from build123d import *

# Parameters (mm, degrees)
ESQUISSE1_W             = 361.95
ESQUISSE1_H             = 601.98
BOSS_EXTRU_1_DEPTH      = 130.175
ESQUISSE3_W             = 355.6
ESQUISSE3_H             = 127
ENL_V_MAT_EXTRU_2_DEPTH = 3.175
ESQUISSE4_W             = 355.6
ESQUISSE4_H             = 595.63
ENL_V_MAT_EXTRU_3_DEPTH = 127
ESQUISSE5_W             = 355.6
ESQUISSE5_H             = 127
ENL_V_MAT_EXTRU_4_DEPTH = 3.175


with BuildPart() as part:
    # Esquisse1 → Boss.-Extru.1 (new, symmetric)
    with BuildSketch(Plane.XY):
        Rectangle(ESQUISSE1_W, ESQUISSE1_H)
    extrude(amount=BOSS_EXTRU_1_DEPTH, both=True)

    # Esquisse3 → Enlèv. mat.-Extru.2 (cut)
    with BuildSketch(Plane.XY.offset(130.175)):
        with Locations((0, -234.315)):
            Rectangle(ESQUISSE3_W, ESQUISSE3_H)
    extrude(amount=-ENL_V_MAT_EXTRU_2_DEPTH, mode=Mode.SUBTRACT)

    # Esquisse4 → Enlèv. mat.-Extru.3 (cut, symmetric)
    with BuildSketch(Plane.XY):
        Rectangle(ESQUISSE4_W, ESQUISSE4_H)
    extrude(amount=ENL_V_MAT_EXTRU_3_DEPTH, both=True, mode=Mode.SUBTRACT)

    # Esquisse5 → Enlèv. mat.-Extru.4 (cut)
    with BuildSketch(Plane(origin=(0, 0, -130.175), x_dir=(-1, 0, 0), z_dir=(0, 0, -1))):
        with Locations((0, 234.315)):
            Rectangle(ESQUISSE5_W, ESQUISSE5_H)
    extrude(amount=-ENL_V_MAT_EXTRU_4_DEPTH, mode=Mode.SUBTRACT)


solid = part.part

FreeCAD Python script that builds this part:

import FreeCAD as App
import Part
import Sketcher

V = App.Vector
Q = App.Units.Quantity

doc = App.newDocument("Part")
body = doc.addObject("PartDesign::Body", "Body")

# Sketch on XY plane
sketch1 = body.newObject("Sketcher::SketchObject", "Sketch")
sketch1.AttachmentSupport = (doc.getObject("XY_Plane"), [""])
sketch1.MapMode = "FlatFace"
sketch1.addGeometry([
    Part.LineSegment(V(-180.975, 300.99, 0), V(-180.975, -300.99, 0)),
    Part.LineSegment(V(-180.975, -300.99, 0), V(180.975, -300.99, 0)),
    Part.LineSegment(V(180.975, -300.99, 0), V(180.975, 300.99, 0)),
    Part.LineSegment(V(180.975, 300.99, 0), V(-180.975, 300.99, 0)),
], False)
sketch1.addConstraint([
    Sketcher.Constraint("Coincident", 0, 2, 1, 1),
    Sketcher.Constraint("Coincident", 1, 2, 2, 1),
    Sketcher.Constraint("Coincident", 2, 2, 3, 1),
    Sketcher.Constraint("Coincident", 3, 2, 0, 1),
    Sketcher.Constraint("Vertical", 0),
    Sketcher.Constraint("Horizontal", 1),
    Sketcher.Constraint("Vertical", 2),
    Sketcher.Constraint("Horizontal", 3),
    Sketcher.Constraint("Symmetric", 0, 2, 2, 2, -1, 1),
    Sketcher.Constraint("DistanceY", 0, 2, 0, 1, Q("23.7 in")),
    Sketcher.Constraint("DistanceX", 1, 1, 1, 2, Q("14.25 in")),
])
pad1 = body.newObject("PartDesign::Pad", "Pad")
pad1.Profile = sketch1
pad1.Length = Q("10.25 in")
pad1.Midplane = True

# Sketch on XY plane
sketch2 = body.newObject("Sketcher::SketchObject", "Sketch001")
sketch2.AttachmentSupport = (doc.getObject("XY_Plane"), [""])
sketch2.MapMode = "FlatFace"
sketch2.AttachmentOffset = App.Placement(V(0, 0, 5.125 * 25.4), App.Rotation())
sketch2.addGeometry([
    Part.LineSegment(V(-177.8, -170.815, 0), V(-177.8, -297.815, 0)),
    Part.LineSegment(V(-177.8, -297.815, 0), V(177.8, -297.815, 0)),
    Part.LineSegment(V(177.8, -297.815, 0), V(177.8, -170.815, 0)),
    Part.LineSegment(V(177.8, -170.815, 0), V(-177.8, -170.815, 0)),
], False)
sketch2.addConstraint([
    Sketcher.Constraint("Coincident", 0, 2, 1, 1),
    Sketcher.Constraint("Coincident", 1, 2, 2, 1),
    Sketcher.Constraint("Coincident", 2, 2, 3, 1),
    Sketcher.Constraint("Coincident", 3, 2, 0, 1),
    Sketcher.Constraint("Vertical", 0),
    Sketcher.Constraint("Horizontal", 1),
    Sketcher.Constraint("Vertical", 2),
    Sketcher.Constraint("Horizontal", 3),
    Sketcher.Constraint("DistanceX", 1, 1, 1, 2, Q("14 in")),
    Sketcher.Constraint("DistanceY", 0, 2, 0, 1, Q("5 in")),
    Sketcher.Constraint("DistanceX", 0, 2, -1, 1, Q("7 in")),
    Sketcher.Constraint("DistanceY", 0, 2, -1, 1, Q("11.725 in")),
])
pocket1 = body.newObject("PartDesign::Pocket", "Pocket")
pocket1.Profile = sketch2
pocket1.Length = Q("0.125 in")

# Sketch on XY plane
sketch3 = body.newObject("Sketcher::SketchObject", "Sketch002")
sketch3.AttachmentSupport = (doc.getObject("XY_Plane"), [""])
sketch3.MapMode = "FlatFace"
sketch3.addGeometry([
    Part.LineSegment(V(-177.8, 297.815, 0), V(-177.8, -297.815, 0)),
    Part.LineSegment(V(-177.8, -297.815, 0), V(177.8, -297.815, 0)),
    Part.LineSegment(V(177.8, -297.815, 0), V(177.8, 297.815, 0)),
    Part.LineSegment(V(177.8, 297.815, 0), V(-177.8, 297.815, 0)),
], False)
sketch3.addConstraint([
    Sketcher.Constraint("Coincident", 0, 2, 1, 1),
    Sketcher.Constraint("Coincident", 1, 2, 2, 1),
    Sketcher.Constraint("Coincident", 2, 2, 3, 1),
    Sketcher.Constraint("Coincident", 3, 2, 0, 1),
    Sketcher.Constraint("Vertical", 0),
    Sketcher.Constraint("Horizontal", 1),
    Sketcher.Constraint("Vertical", 2),
    Sketcher.Constraint("Horizontal", 3),
    Sketcher.Constraint("Symmetric", 0, 2, 2, 2, -1, 1),
    Sketcher.Constraint("DistanceX", 1, 1, 1, 2, Q("14 in")),
    Sketcher.Constraint("DistanceY", 0, 2, 0, 1, Q("23.45 in")),
])
pocket2 = body.newObject("PartDesign::Pocket", "Pocket001")
pocket2.Profile = sketch3
pocket2.Length = Q("10 in")
pocket2.Midplane = True

# Sketch on XY plane
sketch4 = body.newObject("Sketcher::SketchObject", "Sketch003")
sketch4.AttachmentSupport = (doc.getObject("XY_Plane"), [""])
sketch4.MapMode = "FlatFace"
sketch4.AttachmentOffset = App.Placement(V(0, 0, -5.125 * 25.4), App.Rotation())
sketch4.addGeometry([
    Part.LineSegment(V(177.8, 297.815, 0), V(177.8, 170.815, 0)),
    Part.LineSegment(V(177.8, 170.815, 0), V(-177.8, 170.815, 0)),
    Part.LineSegment(V(-177.8, 170.815, 0), V(-177.8, 297.815, 0)),
    Part.LineSegment(V(-177.8, 297.815, 0), V(177.8, 297.815, 0)),
], False)
sketch4.addConstraint([
    Sketcher.Constraint("Coincident", 0, 2, 1, 1),
    Sketcher.Constraint("Coincident", 1, 2, 2, 1),
    Sketcher.Constraint("Coincident", 2, 2, 3, 1),
    Sketcher.Constraint("Coincident", 3, 2, 0, 1),
    Sketcher.Constraint("Vertical", 0),
    Sketcher.Constraint("Horizontal", 1),
    Sketcher.Constraint("Vertical", 2),
    Sketcher.Constraint("Horizontal", 3),
    Sketcher.Constraint("DistanceX", 1, 2, 1, 1, Q("14 in")),
    Sketcher.Constraint("DistanceY", 0, 2, 0, 1, Q("5 in")),
    Sketcher.Constraint("DistanceX", -1, 1, 0, 2, Q("7 in")),
    Sketcher.Constraint("DistanceY", -1, 1, 0, 2, Q("6.725 in")),
])
pocket3 = body.newObject("PartDesign::Pocket", "Pocket002")
pocket3.Profile = sketch4
pocket3.Length = Q("0.125 in")
pocket3.Reversed = True

doc.recompute()
